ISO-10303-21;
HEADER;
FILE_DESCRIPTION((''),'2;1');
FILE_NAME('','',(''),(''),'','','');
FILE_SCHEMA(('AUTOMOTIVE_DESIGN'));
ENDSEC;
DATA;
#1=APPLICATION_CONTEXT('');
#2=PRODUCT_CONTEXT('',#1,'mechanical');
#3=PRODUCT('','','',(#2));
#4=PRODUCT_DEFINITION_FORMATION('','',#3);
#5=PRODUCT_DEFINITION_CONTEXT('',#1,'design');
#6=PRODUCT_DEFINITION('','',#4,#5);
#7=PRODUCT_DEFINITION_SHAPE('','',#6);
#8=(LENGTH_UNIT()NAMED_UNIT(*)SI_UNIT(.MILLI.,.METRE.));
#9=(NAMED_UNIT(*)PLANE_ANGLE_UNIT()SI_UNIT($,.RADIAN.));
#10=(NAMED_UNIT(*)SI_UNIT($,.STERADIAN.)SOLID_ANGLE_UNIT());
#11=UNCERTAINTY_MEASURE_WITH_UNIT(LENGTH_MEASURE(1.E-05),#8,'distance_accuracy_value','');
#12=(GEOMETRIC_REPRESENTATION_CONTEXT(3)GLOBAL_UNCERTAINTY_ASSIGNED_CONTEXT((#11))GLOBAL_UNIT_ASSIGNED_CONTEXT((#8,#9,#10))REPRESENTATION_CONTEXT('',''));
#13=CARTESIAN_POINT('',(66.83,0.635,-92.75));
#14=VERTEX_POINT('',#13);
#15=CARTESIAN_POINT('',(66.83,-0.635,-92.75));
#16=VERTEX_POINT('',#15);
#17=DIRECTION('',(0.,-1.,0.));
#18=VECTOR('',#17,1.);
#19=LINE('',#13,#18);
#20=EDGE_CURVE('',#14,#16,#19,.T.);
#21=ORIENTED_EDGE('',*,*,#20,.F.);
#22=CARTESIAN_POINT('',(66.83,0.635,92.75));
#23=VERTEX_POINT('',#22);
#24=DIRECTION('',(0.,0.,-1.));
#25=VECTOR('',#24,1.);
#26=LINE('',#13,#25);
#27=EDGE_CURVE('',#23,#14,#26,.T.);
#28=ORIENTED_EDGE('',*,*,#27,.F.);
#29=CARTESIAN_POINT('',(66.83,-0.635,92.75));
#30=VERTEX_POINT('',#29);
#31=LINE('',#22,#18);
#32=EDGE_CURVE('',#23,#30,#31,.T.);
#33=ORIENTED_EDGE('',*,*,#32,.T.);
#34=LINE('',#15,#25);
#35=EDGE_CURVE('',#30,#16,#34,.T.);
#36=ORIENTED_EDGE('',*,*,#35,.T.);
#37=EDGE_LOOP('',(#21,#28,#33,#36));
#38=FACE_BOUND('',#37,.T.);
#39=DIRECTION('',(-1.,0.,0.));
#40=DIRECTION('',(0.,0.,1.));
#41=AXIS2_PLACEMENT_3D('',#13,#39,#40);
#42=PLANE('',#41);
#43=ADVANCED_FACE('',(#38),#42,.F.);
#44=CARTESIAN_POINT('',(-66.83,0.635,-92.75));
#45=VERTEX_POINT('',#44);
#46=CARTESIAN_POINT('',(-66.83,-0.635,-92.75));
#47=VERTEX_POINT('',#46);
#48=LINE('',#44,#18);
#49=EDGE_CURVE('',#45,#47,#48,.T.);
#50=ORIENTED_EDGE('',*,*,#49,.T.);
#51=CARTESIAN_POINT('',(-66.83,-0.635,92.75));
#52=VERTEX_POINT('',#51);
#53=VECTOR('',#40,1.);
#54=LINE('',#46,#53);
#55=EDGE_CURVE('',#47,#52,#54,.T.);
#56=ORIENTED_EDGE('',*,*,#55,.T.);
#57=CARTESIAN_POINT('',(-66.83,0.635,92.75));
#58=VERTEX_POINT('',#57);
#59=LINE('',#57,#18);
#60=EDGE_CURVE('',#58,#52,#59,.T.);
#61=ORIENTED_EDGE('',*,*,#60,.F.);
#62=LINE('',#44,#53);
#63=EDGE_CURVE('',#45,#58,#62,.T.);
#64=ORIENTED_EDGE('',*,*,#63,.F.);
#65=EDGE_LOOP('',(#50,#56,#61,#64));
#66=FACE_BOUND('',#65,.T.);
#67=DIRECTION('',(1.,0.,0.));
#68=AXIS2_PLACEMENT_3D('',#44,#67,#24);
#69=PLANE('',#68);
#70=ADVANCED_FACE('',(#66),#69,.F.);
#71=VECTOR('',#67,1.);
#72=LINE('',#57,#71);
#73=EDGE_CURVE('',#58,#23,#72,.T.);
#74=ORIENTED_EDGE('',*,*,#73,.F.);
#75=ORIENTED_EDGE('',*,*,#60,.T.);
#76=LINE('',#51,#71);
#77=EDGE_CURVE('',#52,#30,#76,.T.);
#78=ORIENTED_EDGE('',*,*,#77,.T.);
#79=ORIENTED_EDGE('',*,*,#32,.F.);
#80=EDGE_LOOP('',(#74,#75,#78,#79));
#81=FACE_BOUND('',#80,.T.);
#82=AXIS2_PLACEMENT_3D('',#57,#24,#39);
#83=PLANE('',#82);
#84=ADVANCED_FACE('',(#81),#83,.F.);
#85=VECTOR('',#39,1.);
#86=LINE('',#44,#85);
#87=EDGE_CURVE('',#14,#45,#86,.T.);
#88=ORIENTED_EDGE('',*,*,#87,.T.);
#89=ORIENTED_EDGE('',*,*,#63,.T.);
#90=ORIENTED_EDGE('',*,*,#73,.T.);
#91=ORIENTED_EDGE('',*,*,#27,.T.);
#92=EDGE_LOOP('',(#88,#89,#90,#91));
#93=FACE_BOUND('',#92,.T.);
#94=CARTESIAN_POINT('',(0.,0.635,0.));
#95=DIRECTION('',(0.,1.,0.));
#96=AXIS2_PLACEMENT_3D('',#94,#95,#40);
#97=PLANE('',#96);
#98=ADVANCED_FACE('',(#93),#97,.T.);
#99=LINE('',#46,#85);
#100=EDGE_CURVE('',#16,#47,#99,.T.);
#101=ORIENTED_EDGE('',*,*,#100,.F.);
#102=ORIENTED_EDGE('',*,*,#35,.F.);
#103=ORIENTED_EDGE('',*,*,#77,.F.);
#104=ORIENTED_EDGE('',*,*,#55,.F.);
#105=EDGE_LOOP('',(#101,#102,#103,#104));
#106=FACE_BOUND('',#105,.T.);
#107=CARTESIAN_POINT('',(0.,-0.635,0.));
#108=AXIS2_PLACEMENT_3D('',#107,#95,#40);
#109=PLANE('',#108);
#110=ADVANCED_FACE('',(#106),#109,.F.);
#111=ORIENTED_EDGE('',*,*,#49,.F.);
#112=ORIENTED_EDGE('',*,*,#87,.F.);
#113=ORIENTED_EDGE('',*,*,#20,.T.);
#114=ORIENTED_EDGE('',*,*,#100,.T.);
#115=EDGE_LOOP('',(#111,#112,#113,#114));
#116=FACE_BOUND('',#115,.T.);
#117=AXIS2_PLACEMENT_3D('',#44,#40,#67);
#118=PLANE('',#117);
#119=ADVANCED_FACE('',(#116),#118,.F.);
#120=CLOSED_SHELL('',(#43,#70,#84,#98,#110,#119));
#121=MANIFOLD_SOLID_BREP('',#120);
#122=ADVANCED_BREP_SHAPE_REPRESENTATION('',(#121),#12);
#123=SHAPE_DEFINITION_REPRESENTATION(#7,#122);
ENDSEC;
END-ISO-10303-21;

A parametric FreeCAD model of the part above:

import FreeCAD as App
import Part
import Sketcher
from FreeCAD import Vector

doc = App.newDocument("Part")
body = doc.addObject("PartDesign::Body", "Body")

sketch1 = doc.addObject("Sketcher::SketchObject", "Sketch")
body.addObject(sketch1)
sketch1.AttachmentSupport = (doc.XZ_Plane, [""])
sketch1.MapMode = "FlatFace"
sketch1.addGeometry([
    Part.LineSegment(Vector(-67, -93, 0), Vector(-67, 93, 0)),
    Part.LineSegment(Vector(-67, 93, 0), Vector(67, 93, 0)),
    Part.LineSegment(Vector(67, 93, 0), Vector(67, -93, 0)),
    Part.LineSegment(Vector(67, -93, 0), Vector(-67, -93, 0)),
], False)
sketch1.addConstraint([
    Sketcher.Constraint("Coincident", 0, 2, 1, 1),
    Sketcher.Constraint("Coincident", 1, 2, 2, 1),
    Sketcher.Constraint("Coincident", 2, 2, 3, 1),
    Sketcher.Constraint("Coincident", 3, 2, 0, 1),
    Sketcher.Constraint("Vertical", 0),
    Sketcher.Constraint("Horizontal", 1),
    Sketcher.Constraint("Vertical", 2),
    Sketcher.Constraint("Horizontal", 3),
    Sketcher.Constraint("Symmetric", 0, 2, 2, 2, -1, 1),
    Sketcher.Constraint("DistanceY", 0, 1, 0, 2, 185.5),
    Sketcher.Constraint("DistanceX", 1, 1, 1, 2, 133.66),
])
pad1 = doc.addObject("PartDesign::Pad", "Pad")
body.addObject(pad1)
pad1.Profile = sketch1
pad1.Length = 1.27
pad1.Midplane = True

doc.recompute()
